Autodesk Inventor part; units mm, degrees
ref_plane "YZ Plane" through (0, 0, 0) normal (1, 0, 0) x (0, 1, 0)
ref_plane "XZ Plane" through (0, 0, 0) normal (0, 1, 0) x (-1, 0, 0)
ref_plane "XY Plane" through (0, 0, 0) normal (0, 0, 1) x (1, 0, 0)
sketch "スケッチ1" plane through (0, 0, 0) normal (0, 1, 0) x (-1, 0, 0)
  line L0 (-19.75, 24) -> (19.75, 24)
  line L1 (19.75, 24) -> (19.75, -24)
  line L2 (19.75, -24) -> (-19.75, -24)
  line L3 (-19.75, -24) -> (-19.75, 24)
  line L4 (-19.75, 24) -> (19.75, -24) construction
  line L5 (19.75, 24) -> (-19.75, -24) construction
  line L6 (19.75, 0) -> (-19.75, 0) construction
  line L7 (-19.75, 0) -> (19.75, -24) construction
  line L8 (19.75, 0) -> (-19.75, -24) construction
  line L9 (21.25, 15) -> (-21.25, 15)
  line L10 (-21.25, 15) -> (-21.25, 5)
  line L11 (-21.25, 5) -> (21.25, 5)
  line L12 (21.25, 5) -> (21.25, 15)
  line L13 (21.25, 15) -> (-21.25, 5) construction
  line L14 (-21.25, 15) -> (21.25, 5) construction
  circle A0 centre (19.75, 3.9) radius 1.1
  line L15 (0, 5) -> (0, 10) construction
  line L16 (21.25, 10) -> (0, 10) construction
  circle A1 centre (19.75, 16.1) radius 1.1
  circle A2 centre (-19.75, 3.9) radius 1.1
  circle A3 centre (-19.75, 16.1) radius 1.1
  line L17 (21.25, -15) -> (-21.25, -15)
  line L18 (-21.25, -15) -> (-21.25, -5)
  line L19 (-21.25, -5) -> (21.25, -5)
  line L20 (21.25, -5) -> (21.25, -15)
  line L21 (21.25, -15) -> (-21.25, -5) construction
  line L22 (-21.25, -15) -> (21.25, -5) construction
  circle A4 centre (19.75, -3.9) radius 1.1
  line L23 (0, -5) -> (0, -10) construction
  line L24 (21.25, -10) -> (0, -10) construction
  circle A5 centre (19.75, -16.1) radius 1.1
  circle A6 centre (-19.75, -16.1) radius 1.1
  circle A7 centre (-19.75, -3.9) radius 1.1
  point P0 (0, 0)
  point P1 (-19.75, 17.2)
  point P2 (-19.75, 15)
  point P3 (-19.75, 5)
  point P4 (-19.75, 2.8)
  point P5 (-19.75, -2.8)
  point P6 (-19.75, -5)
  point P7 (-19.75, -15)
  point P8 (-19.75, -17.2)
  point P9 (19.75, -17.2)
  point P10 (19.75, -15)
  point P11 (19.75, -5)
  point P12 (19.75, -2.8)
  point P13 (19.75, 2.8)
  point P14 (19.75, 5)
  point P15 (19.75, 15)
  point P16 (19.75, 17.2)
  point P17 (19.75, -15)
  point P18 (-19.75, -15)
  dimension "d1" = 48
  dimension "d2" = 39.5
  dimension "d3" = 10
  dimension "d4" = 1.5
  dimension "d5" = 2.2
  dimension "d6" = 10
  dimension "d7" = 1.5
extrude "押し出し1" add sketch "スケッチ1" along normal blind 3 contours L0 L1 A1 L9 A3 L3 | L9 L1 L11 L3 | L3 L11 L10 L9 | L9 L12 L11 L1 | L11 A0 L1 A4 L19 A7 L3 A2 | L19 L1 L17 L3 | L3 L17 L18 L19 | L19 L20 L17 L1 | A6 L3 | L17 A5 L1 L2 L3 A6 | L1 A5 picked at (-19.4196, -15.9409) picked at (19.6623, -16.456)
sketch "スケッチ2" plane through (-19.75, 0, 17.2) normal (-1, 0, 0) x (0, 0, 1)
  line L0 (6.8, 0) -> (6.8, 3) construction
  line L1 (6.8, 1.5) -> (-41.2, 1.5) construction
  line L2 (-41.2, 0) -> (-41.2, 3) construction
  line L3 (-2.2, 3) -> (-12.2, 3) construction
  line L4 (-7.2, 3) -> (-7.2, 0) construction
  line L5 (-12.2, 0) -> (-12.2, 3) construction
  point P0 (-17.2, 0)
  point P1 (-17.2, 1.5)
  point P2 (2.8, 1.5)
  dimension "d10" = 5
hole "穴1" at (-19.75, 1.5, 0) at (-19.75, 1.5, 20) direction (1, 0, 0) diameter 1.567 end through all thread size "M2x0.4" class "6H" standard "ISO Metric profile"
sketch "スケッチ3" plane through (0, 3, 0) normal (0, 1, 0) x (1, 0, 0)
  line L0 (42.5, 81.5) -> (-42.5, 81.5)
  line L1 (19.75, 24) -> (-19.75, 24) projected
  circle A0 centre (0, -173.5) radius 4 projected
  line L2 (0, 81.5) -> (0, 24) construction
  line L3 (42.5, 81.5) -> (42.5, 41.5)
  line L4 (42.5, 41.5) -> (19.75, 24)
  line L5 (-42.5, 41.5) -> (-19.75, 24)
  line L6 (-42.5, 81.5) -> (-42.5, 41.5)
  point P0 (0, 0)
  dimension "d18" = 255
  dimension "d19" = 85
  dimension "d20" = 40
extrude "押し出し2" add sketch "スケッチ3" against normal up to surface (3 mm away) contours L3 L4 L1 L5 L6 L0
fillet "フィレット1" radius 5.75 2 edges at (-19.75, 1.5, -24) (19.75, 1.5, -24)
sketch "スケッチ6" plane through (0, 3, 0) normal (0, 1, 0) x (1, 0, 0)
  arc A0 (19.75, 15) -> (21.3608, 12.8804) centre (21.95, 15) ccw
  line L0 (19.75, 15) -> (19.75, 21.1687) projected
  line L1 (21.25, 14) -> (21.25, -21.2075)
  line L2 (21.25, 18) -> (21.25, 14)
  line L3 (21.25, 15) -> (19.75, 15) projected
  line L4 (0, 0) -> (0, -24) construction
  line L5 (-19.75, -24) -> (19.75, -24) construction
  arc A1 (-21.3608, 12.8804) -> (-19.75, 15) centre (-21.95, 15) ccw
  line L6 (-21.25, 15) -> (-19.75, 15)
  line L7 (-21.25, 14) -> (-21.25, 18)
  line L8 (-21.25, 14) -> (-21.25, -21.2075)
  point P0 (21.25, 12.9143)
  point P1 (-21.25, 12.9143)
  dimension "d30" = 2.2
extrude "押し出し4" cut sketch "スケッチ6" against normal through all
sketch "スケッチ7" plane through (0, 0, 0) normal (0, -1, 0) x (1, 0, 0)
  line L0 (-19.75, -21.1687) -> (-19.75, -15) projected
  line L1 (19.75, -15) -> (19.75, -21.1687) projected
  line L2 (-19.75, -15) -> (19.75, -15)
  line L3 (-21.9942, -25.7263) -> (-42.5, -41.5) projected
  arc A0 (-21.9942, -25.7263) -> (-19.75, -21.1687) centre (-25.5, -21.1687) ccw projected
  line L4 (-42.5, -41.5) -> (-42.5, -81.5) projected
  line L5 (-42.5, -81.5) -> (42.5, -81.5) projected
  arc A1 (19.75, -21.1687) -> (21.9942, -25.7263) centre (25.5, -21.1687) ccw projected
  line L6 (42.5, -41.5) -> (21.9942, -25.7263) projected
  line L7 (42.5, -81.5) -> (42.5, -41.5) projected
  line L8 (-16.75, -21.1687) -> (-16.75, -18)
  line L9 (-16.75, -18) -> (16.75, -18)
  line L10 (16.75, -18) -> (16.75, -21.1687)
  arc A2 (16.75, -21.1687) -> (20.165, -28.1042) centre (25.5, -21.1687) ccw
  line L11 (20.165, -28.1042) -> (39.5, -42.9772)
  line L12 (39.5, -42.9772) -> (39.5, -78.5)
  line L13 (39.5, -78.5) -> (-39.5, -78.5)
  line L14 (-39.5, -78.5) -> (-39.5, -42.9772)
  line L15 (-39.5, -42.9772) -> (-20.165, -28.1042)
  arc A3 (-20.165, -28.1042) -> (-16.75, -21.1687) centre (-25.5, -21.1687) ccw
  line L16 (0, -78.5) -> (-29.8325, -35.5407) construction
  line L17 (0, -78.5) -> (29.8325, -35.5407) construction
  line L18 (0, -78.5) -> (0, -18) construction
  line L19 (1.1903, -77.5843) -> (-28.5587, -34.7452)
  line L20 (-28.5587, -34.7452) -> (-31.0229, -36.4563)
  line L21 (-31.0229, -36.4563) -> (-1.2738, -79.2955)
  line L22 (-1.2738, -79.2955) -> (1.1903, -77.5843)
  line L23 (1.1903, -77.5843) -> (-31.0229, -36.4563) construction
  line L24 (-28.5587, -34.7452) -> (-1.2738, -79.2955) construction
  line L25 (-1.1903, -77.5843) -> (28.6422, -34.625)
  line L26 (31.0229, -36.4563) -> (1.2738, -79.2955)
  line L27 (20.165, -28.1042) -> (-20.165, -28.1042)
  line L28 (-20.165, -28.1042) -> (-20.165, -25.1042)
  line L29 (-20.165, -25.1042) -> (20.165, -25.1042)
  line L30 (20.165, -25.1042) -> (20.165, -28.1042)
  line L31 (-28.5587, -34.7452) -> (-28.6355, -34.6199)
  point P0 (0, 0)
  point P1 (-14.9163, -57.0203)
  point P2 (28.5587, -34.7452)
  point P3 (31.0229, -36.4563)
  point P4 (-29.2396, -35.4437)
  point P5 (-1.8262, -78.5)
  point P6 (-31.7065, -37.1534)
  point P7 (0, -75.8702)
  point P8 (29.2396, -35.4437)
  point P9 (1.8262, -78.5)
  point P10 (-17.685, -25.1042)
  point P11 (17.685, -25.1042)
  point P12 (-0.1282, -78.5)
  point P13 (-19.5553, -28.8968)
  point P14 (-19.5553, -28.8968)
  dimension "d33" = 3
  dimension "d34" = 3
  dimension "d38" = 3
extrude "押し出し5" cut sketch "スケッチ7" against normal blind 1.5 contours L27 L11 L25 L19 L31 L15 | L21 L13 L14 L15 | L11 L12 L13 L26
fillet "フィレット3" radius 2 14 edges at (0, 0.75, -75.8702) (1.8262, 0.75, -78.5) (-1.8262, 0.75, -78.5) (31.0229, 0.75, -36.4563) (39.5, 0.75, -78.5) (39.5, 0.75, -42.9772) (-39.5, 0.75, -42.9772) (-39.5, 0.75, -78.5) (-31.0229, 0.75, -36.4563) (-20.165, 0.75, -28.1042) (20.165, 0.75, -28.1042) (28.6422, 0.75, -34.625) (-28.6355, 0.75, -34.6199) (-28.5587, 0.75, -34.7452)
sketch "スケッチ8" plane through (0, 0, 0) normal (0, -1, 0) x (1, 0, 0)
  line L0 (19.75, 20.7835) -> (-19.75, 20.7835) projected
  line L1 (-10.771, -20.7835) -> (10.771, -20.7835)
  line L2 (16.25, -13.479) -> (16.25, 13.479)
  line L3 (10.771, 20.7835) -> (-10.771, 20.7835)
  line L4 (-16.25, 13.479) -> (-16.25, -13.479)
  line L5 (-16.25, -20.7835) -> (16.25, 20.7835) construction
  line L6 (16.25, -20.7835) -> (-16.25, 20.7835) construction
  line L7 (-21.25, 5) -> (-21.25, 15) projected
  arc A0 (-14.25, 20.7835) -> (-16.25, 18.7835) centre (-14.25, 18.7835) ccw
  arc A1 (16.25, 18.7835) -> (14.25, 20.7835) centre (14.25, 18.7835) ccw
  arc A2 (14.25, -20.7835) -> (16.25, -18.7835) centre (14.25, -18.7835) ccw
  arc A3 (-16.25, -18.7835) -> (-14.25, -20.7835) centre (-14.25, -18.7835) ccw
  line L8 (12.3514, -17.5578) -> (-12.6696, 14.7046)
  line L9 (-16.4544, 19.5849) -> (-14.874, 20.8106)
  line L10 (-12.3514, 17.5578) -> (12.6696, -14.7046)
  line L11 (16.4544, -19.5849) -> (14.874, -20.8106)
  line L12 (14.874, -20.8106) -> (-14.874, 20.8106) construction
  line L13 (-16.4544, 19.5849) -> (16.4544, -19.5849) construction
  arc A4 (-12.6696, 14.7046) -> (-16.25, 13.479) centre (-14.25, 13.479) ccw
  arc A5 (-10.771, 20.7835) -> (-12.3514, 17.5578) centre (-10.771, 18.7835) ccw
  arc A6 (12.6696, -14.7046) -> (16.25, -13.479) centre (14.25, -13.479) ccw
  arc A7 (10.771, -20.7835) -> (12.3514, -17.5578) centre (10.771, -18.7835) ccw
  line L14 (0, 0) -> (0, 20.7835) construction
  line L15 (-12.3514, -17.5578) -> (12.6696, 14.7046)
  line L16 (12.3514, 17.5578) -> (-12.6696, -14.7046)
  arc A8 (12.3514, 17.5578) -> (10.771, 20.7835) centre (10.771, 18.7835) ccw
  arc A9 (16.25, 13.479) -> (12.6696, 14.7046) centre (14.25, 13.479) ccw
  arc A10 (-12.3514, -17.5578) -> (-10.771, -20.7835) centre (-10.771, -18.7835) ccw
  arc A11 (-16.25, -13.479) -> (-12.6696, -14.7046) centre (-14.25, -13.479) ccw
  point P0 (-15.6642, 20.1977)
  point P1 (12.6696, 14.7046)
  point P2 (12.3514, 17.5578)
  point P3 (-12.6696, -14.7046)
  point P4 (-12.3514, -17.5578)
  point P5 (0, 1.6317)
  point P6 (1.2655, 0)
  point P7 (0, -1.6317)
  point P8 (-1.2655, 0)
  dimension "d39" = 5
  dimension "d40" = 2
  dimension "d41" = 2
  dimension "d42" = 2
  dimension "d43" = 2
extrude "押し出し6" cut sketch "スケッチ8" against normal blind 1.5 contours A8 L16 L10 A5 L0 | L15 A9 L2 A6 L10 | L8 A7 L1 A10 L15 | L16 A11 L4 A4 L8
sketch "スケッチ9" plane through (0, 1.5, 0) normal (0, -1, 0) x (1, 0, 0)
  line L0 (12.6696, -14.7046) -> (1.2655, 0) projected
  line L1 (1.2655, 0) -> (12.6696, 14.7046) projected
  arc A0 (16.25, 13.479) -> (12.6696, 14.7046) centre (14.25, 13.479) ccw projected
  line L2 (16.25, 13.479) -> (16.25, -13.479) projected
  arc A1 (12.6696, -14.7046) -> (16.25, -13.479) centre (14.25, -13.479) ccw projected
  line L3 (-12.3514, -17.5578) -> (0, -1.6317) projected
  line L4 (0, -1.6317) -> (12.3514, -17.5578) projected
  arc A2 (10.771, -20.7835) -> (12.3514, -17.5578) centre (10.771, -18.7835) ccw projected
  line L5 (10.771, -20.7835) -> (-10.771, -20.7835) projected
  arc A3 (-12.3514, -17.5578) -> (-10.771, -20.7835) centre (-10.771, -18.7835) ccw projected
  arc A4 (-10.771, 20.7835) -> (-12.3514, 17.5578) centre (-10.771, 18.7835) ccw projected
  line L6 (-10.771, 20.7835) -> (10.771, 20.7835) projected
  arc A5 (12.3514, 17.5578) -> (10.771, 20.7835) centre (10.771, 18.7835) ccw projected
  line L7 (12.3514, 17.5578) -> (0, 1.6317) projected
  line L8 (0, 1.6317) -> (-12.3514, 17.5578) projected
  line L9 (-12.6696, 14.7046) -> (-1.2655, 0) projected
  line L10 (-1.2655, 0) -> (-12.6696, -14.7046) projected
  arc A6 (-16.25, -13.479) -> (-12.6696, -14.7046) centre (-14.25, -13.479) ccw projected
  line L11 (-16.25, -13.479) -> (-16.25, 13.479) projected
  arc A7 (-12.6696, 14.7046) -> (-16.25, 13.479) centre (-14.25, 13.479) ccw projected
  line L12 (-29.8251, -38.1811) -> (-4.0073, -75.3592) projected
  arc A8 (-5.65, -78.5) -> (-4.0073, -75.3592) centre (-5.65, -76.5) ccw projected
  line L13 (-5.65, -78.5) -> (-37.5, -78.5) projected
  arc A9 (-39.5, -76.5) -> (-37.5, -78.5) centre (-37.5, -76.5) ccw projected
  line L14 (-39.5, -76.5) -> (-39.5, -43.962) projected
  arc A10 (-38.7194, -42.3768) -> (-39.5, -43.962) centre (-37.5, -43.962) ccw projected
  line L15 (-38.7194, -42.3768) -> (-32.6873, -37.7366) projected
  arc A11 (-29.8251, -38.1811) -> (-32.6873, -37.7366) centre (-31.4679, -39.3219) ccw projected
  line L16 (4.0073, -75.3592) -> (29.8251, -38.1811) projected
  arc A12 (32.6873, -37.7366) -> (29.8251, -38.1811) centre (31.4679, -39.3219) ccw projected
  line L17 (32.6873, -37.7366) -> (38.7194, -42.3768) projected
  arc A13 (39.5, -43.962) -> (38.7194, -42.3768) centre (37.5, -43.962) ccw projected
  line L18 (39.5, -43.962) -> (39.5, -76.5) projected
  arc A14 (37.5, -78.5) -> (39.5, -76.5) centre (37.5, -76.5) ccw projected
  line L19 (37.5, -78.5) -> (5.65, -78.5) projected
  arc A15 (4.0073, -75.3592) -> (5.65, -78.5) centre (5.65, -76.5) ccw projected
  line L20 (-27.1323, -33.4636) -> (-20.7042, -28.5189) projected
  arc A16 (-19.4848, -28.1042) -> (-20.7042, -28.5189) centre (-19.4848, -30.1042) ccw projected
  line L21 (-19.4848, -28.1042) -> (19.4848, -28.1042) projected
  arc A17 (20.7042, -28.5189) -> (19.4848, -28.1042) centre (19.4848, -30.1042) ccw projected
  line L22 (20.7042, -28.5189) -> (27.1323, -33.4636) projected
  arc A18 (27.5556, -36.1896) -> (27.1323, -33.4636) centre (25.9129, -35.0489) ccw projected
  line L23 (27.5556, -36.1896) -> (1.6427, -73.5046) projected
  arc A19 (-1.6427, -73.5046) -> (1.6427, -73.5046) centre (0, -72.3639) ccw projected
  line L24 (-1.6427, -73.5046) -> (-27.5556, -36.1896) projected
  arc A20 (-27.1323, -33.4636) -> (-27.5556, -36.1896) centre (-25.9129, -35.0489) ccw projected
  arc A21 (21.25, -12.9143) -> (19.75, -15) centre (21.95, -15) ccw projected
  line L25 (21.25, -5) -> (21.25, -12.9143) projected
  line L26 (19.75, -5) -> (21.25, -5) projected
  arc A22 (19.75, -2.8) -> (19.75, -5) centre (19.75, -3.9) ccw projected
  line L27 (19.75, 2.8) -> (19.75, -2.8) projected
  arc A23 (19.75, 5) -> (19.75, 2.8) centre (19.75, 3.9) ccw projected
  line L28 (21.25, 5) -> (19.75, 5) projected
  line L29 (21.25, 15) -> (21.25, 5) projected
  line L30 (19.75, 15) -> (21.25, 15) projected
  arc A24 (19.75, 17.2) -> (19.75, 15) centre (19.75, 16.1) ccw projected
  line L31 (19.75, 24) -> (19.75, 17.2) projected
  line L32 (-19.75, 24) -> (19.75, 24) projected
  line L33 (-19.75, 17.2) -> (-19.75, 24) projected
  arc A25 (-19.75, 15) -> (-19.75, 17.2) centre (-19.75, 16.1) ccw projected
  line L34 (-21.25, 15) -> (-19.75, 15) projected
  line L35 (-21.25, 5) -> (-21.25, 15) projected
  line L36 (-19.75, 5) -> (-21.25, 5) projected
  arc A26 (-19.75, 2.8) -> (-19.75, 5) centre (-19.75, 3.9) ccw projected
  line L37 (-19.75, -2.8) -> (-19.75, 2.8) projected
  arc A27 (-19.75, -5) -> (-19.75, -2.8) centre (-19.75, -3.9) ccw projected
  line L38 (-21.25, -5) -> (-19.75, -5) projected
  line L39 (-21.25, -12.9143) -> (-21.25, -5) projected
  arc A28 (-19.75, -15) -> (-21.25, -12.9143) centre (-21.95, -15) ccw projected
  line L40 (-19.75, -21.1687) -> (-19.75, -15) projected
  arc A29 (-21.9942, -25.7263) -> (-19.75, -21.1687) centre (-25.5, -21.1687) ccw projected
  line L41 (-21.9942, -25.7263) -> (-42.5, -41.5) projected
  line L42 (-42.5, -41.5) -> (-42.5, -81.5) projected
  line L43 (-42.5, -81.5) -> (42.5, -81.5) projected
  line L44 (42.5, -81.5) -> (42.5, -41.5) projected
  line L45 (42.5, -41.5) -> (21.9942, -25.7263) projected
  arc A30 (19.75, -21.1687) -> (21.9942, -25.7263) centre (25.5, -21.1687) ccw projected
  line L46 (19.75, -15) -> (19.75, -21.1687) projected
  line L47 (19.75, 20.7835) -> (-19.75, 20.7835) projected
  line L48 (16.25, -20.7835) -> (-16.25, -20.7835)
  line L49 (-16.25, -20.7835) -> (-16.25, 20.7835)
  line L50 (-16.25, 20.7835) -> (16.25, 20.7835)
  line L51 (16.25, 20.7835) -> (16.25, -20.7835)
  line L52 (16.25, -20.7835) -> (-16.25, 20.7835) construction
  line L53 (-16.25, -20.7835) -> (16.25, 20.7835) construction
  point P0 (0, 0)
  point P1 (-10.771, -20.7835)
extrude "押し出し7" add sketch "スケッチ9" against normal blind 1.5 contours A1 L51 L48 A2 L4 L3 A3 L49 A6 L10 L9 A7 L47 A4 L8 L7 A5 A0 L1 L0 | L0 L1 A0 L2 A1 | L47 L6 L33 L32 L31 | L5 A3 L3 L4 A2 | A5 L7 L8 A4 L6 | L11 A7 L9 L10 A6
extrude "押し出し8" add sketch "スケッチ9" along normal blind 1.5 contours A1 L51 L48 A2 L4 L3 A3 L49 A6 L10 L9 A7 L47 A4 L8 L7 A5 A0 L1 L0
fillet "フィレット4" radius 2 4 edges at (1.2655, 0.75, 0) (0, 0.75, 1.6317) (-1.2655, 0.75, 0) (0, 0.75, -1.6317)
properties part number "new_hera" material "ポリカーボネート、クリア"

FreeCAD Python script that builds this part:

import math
import FreeCAD as App
import Part
import Sketcher


def edges_at(feature, points):
    """Names of the edges that pass closest to the given points."""
    edges = feature.Shape.Edges
    near = lambda p: min(range(len(edges)), key=lambda i: edges[i].distToShape(Part.Vertex(*p))[0])
    return sorted({f"Edge{near(p) + 1}" for p in points})


def add_polygon(sketch, points):
    """Adds a closed chain of lines whose ends are joined by coincident constraints."""
    first, n = sketch.GeometryCount, len(points)
    for a, b in zip(points, points[1:] + points[:1]):
        sketch.addGeometry(Part.LineSegment(App.Vector(*a, 0), App.Vector(*b, 0)), False)
    for i in range(n):
        sketch.addConstraint(Sketcher.Constraint("Coincident", first + i, 2, first + (i + 1) % n, 1))

doc = App.newDocument("Part")
body = doc.addObject("PartDesign::Body", "Body")

sketch1 = body.newObject("Sketcher::SketchObject", "Sketch")
sketch1.AttachmentSupport = (doc.getObject("XZ_Plane"), [""])
sketch1.MapMode = "FlatFace"
sketch1.addGeometry([
    Part.LineSegment(App.Vector(-19.75, 24, 0), App.Vector(19.75, 24, 0)),
    Part.LineSegment(App.Vector(19.75, 24, 0), App.Vector(19.75, 17.2, 0)),
    Part.ArcOfCircle(Part.Circle(App.Vector(19.75, 16.1, 0), App.Vector(0, 0, 1), 1.1), math.radians(90), math.radians(270)),
    Part.LineSegment(App.Vector(19.75, 15, 0), App.Vector(21.25, 15, 0)),
    Part.LineSegment(App.Vector(21.25, 15, 0), App.Vector(21.25, 5, 0)),
    Part.LineSegment(App.Vector(21.25, 5, 0), App.Vector(19.75, 5, 0)),
    Part.ArcOfCircle(Part.Circle(App.Vector(19.75, 3.9, 0), App.Vector(0, 0, 1), 1.1), math.radians(90), math.radians(270)),
    Part.LineSegment(App.Vector(19.75, 2.8, 0), App.Vector(19.75, -2.8, 0)),
    Part.ArcOfCircle(Part.Circle(App.Vector(19.75, -3.9, 0), App.Vector(0, 0, 1), 1.1), math.radians(90), math.radians(270)),
    Part.LineSegment(App.Vector(19.75, -5, 0), App.Vector(21.25, -5, 0)),
    Part.LineSegment(App.Vector(21.25, -5, 0), App.Vector(21.25, -15, 0)),
    Part.LineSegment(App.Vector(21.25, -15, 0), App.Vector(19.75, -15, 0)),
    Part.LineSegment(App.Vector(19.75, -15, 0), App.Vector(19.75, -24, 0)),
    Part.LineSegment(App.Vector(19.75, -24, 0), App.Vector(-19.75, -24, 0)),
    Part.LineSegment(App.Vector(-19.75, -24, 0), App.Vector(-19.75, -15, 0)),
    Part.LineSegment(App.Vector(-19.75, -15, 0), App.Vector(-21.25, -15, 0)),
    Part.LineSegment(App.Vector(-21.25, -15, 0), App.Vector(-21.25, -5, 0)),
    Part.LineSegment(App.Vector(-21.25, -5, 0), App.Vector(-19.75, -5, 0)),
    Part.ArcOfCircle(Part.Circle(App.Vector(-19.75, -3.9, 0), App.Vector(0, 0, 1), 1.1), math.radians(-90), math.radians(90)),
    Part.LineSegment(App.Vector(-19.75, -2.8, 0), App.Vector(-19.75, 2.8, 0)),
    Part.ArcOfCircle(Part.Circle(App.Vector(-19.75, 3.9, 0), App.Vector(0, 0, 1), 1.1), math.radians(-90), math.radians(90)),
    Part.LineSegment(App.Vector(-19.75, 5, 0), App.Vector(-21.25, 5, 0)),
    Part.LineSegment(App.Vector(-21.25, 5, 0), App.Vector(-21.25, 15, 0)),
    Part.LineSegment(App.Vector(-21.25, 15, 0), App.Vector(-19.75, 15, 0)),
    Part.ArcOfCircle(Part.Circle(App.Vector(-19.75, 16.1, 0), App.Vector(0, 0, 1), 1.1), math.radians(-90), math.radians(90)),
    Part.LineSegment(App.Vector(-19.75, 17.2, 0), App.Vector(-19.75, 24, 0)),
], False)
sketch1.addConstraint([
    Sketcher.Constraint("Coincident", 0, 2, 1, 1),
    Sketcher.Constraint("Coincident", 1, 2, 2, 1),
    Sketcher.Constraint("Tangent", 2, 2, 3, 1),
    Sketcher.Constraint("Coincident", 3, 2, 4, 1),
    Sketcher.Constraint("Coincident", 4, 2, 5, 1),
    Sketcher.Constraint("Tangent", 5, 2, 6, 1),
    Sketcher.Constraint("Coincident", 6, 2, 7, 1),
    Sketcher.Constraint("Coincident", 7, 2, 8, 1),
    Sketcher.Constraint("Tangent", 8, 2, 9, 1),
    Sketcher.Constraint("Coincident", 9, 2, 10, 1),
    Sketcher.Constraint("Coincident", 10, 2, 11, 1),
    Sketcher.Constraint("Coincident", 11, 2, 12, 1),
    Sketcher.Constraint("Coincident", 12, 2, 13, 1),
    Sketcher.Constraint("Coincident", 13, 2, 14, 1),
    Sketcher.Constraint("Coincident", 14, 2, 15, 1),
    Sketcher.Constraint("Coincident", 15, 2, 16, 1),
    Sketcher.Constraint("Coincident", 16, 2, 17, 1),
    Sketcher.Constraint("Tangent", 17, 2, 18, 1),
    Sketcher.Constraint("Coincident", 18, 2, 19, 1),
    Sketcher.Constraint("Coincident", 19, 2, 20, 1),
    Sketcher.Constraint("Tangent", 20, 2, 21, 1),
    Sketcher.Constraint("Coincident", 21, 2, 22, 1),
    Sketcher.Constraint("Coincident", 22, 2, 23, 1),
    Sketcher.Constraint("Tangent", 23, 2, 24, 1),
    Sketcher.Constraint("Coincident", 24, 2, 25, 1),
    Sketcher.Constraint("Coincident", 25, 2, 0, 1),
    Sketcher.Constraint("Horizontal", 0),
    Sketcher.Constraint("Vertical", 1),
    Sketcher.Constraint("Horizontal", 3),
    Sketcher.Constraint("Vertical", 4),
    Sketcher.Constraint("Horizontal", 5),
    Sketcher.Constraint("Vertical", 7),
    Sketcher.Constraint("Horizontal", 9),
    Sketcher.Constraint("Vertical", 10),
    Sketcher.Constraint("Horizontal", 11),
    Sketcher.Constraint("Vertical", 12),
    Sketcher.Constraint("Horizontal", 13),
    Sketcher.Constraint("Vertical", 14),
    Sketcher.Constraint("Horizontal", 15),
    Sketcher.Constraint("Vertical", 16),
    Sketcher.Constraint("Horizontal", 17),
    Sketcher.Constraint("Vertical", 19),
    Sketcher.Constraint("Horizontal", 21),
    Sketcher.Constraint("Vertical", 22),
    Sketcher.Constraint("Horizontal", 23),
    Sketcher.Constraint("Vertical", 25),
    Sketcher.Constraint("Equal", 2, 6),
    Sketcher.Constraint("Equal", 6, 8),
    Sketcher.Constraint("Equal", 8, 18),
    Sketcher.Constraint("Equal", 18, 20),
    Sketcher.Constraint("Equal", 20, 24),
    Sketcher.Constraint("Symmetric", 6, 3, 18, 3, -1, 1),
    Sketcher.Constraint("Symmetric", 8, 3, 20, 3, -1, 1),
    Sketcher.Constraint("Symmetric", 0, 2, 13, 2, -1, 1),
    Sketcher.Constraint("Symmetric", 2, 2, 14, 2, -1, 1),
    Sketcher.Constraint("Symmetric", 10, 2, 22, 2, -1, 1),
    Sketcher.Constraint("Symmetric", 8, 3, 18, 3, -2),
    Sketcher.Constraint("Symmetric", 2, 3, 24, 3, -2),
    Sketcher.Constraint("Vertical", 2, 3, 6, 3),
    Sketcher.Constraint("Vertical", 5, 2, 6, 2),
    Sketcher.Constraint("Vertical", 4, 2, 9, 2),
    Sketcher.Constraint("Vertical", 8, 2, 11, 2),
    Sketcher.Constraint("Vertical", 17, 2, 18, 2),
    Sketcher.Constraint("Vertical", 16, 2, 21, 2),
    Sketcher.Constraint("Vertical", 23, 2, 24, 2),
    Sketcher.Constraint("Radius", 2, 1.1),
    Sketcher.Constraint("DistanceY", 4, 2, 4, 1, 10.0),
    Sketcher.Constraint("DistanceX", 0, 1, 0, 2, 39.5),
    Sketcher.Constraint("DistanceX", 3, 1, 3, 2, 1.5),
    Sketcher.Constraint("DistanceY", 8, 2, 5, 2, 10.0),
    Sketcher.Constraint("DistanceY", 12, 2, 12, 1, 9.0),
])
pad1 = body.newObject("PartDesign::Pad", "Pad")
pad1.Profile = sketch1
pad1.Length = 3
pad1.Reversed = True

sketch2 = body.newObject("Sketcher::SketchObject", "Sketch001")
sketch2.AttachmentSupport = (doc.getObject("YZ_Plane"), [""])
sketch2.MapMode = "FlatFace"
sketch2.AttachmentOffset = App.Placement(App.Vector(0, 0, -19.75), App.Rotation())
sketch2.addGeometry([
    Part.Circle(App.Vector(1.5, 0, 0), App.Vector(0, 0, 1), 0.7835),
    Part.Circle(App.Vector(1.5, 20, 0), App.Vector(0, 0, 1), 0.7835),
], False)
sketch2.addConstraint([
    Sketcher.Constraint("Equal", 0, 1),
    Sketcher.Constraint("PointOnObject", 0, 3, -1),
    Sketcher.Constraint("Vertical", 0, 3, 1, 3),
    Sketcher.Constraint("Diameter", 0, 1.567),
    Sketcher.Constraint("DistanceY", -1, 1, 1, 3, 20.0),
    Sketcher.Constraint("DistanceX", -1, 1, 0, 3, 1.5),
])
doc.recompute()
hole = body.newObject("PartDesign::Hole", "Hole")
hole.Profile = sketch2
hole.ThreadType = "None"
hole.Diameter = 1.567
hole.DepthType = "ThroughAll"
hole.Reversed = True

sketch3 = body.newObject("Sketcher::SketchObject", "Sketch002")
sketch3.AttachmentSupport = (doc.getObject("XZ_Plane"), [""])
sketch3.MapMode = "FlatFace"
sketch3.AttachmentOffset = App.Placement(App.Vector(0, 0, -3), App.Rotation())
add_polygon(sketch3, [(42.5, -41.5), (42.5, -81.5), (-42.5, -81.5), (-42.5, -41.5), (-19.75, -24), (19.75, -24)])
sketch3.addConstraint([
    Sketcher.Constraint("Vertical", 0),
    Sketcher.Constraint("Horizontal", 1),
    Sketcher.Constraint("Vertical", 2),
    Sketcher.Constraint("Horizontal", 4),
    Sketcher.Constraint("Symmetric", 2, 2, 5, 2, -2),
    Sketcher.Constraint("Equal", 3, 5),
    Sketcher.Constraint("DistanceX", 1, 2, 1, 1, 85.0),
    Sketcher.Constraint("DistanceY", 0, 2, 0, 1, 40.0),
    Sketcher.Constraint("DistanceX", 4, 1, 4, 2, 39.5),
    Sketcher.Constraint("DistanceY", 3, 2, -1, 1, 24.0),
    Sketcher.Constraint("DistanceY", 0, 2, -1, 1, 81.5),
])
pad2 = body.newObject("PartDesign::Pad", "Pad001")
pad2.Profile = sketch3
pad2.Length = 3
doc.recompute()

fillet = body.newObject("PartDesign::Fillet", "Fillet")
fillet.Base = (pad2, edges_at(pad2, [(-19.75, 1.5, -24), (19.75, 1.5, -24)]))
fillet.Radius = 5.75

sketch4 = body.newObject("Sketcher::SketchObject", "Sketch003")
sketch4.AttachmentSupport = (doc.getObject("XZ_Plane"), [""])
sketch4.MapMode = "FlatFace"
sketch4.AttachmentOffset = App.Placement(App.Vector(0, 0, -3), App.Rotation())
sketch4.addGeometry([
    Part.LineSegment(App.Vector(21.25, -15, 0), App.Vector(19.75, -15, 0)),
    Part.ArcOfCircle(Part.Circle(App.Vector(21.95, -15, 0), App.Vector(0, 0, 1), 2.2), math.radians(108.55325), math.radians(180)),
    Part.LineSegment(App.Vector(21.25, -12.914364, 0), App.Vector(21.25, -15, 0)),
    Part.LineSegment(App.Vector(-21.25, -15, 0), App.Vector(-21.25, -12.914369, 0)),
    Part.ArcOfCircle(Part.Circle(App.Vector(-21.95, -15, 0), App.Vector(0, 0, 1), 2.199968), math.radians(0), math.radians(71.446708)),
    Part.LineSegment(App.Vector(-19.75, -15, 0), App.Vector(-21.25, -15, 0)),
], False)
sketch4.addConstraint([
    Sketcher.Constraint("Coincident", 0, 2, 1, 2),
    Sketcher.Constraint("Coincident", 1, 1, 2, 1),
    Sketcher.Constraint("Coincident", 2, 2, 0, 1),
    Sketcher.Constraint("Coincident", 3, 2, 4, 2),
    Sketcher.Constraint("Coincident", 4, 1, 5, 1),
    Sketcher.Constraint("Coincident", 5, 2, 3, 1),
    Sketcher.Constraint("Horizontal", 0),
    Sketcher.Constraint("Vertical", 2),
    Sketcher.Constraint("Vertical", 3),
    Sketcher.Constraint("Horizontal", 5),
    Sketcher.Constraint("Equal", 1, 4),
    Sketcher.Constraint("Symmetric", 1, 3, 4, 3, -2),
    Sketcher.Constraint("Symmetric", 2, 2, 5, 2, -2),
    Sketcher.Constraint("Horizontal", 4, 3, 0, 2),
    Sketcher.Constraint("Radius", 1, 2.2),
    Sketcher.Constraint("DistanceX", 0, 2, 0, 1, 1.5),
    Sketcher.Constraint("DistanceY", 1, 3, -1, 1, 15.0),
    Sketcher.Constraint("DistanceX", 3, 2, 0, 2, 41.0),
])
pocket1 = body.newObject("PartDesign::Pocket", "Pocket")
pocket1.Profile = sketch4
pocket1.Type = "ThroughAll"
pocket1.Reversed = True

sketch5 = body.newObject("Sketcher::SketchObject", "Sketch004")
sketch5.AttachmentSupport = (doc.getObject("XZ_Plane"), [""])
sketch5.MapMode = "FlatFace"
add_polygon(sketch5, [(20.165, -28.1042), (-20.165, -28.1042), (-28.6355, -34.6199), (-28.5587, -34.7452), (0.000001, -75.870247), (28.642157, -34.625056)])
add_polygon(sketch5, [(-1.826224, -78.5), (-31.022858, -36.456355), (-39.5, -42.9772), (-39.5, -78.5)])
add_polygon(sketch5, [(39.5, -42.9772), (31.0229, -36.4563), (1.826224, -78.5), (39.5, -78.5)])
sketch5.addConstraint([
    Sketcher.Constraint("Horizontal", 0),
    Sketcher.Constraint("Vertical", 8),
    Sketcher.Constraint("Horizontal", 9),
    Sketcher.Constraint("Horizontal", 12),
    Sketcher.Constraint("Vertical", 13),
    Sketcher.Constraint("Symmetric", 6, 2, 10, 2, -2),
    Sketcher.Constraint("Symmetric", 9, 2, 11, 2, -2),
    Sketcher.Constraint("Symmetric", 7, 2, 13, 2, -2),
    Sketcher.Constraint("PointOnObject", 3, 2, -2),
    Sketcher.Constraint("Parallel", 3, 6),
    Sketcher.Constraint("Parallel", 1, 7),
    Sketcher.Constraint("Parallel", 5, 10),
    Sketcher.Constraint("Parallel", 4, 11),
    Sketcher.Constraint("Equal", 5, 7),
    Sketcher.Constraint("DistanceX", 0, 2, 0, 1, 40.33),
    Sketcher.Constraint("DistanceX", 7, 2, -1, 1, 39.5),
    Sketcher.Constraint("DistanceY", 8, 2, -1, 1, 78.5),
    Sketcher.Constraint("DistanceY", 1, 2, -1, 1, 34.62),
    Sketcher.Constraint("Distance", 2, 0.147),
    Sketcher.Constraint("Distance", 4, 50.215),
    Sketcher.Constraint("Distance", 5, 10.695),
    Sketcher.Constraint("Distance", 6, 51.187),
    Sketcher.Constraint("DistanceX", 9, 1, 9, 2, 37.6738),
    Sketcher.Constraint("DistanceY", 8, 2, 8, 1, 35.5228),
    Sketcher.Constraint("DistanceY", 4, 2, -1, 1, 34.625),
])
pocket2 = body.newObject("PartDesign::Pocket", "Pocket001")
pocket2.Profile = sketch5
pocket2.Length = 1.5
doc.recompute()

fillet2 = body.newObject("PartDesign::Fillet", "Fillet001")
fillet2.Base = (pocket2, edges_at(pocket2, [
    (0, 0.75, -75.87),
    (1.826, 0.75, -78.5),
    (-1.826, 0.75, -78.5),
    (31.023, 0.75, -36.456),
    (39.5, 0.75, -78.5),
    (39.5, 0.75, -42.977),
    (-39.5, 0.75, -42.977),
    (-39.5, 0.75, -78.5),
    (-31.023, 0.75, -36.456),
    (-20.165, 0.75, -28.104),
    (20.165, 0.75, -28.104),
    (28.642, 0.75, -34.625),
    (-28.636, 0.75, -34.62),
    (-28.559, 0.75, -34.745),
]))
fillet2.Radius = 2

sketch6 = body.newObject("Sketcher::SketchObject", "Sketch005")
sketch6.AttachmentSupport = (doc.getObject("XZ_Plane"), [""])
sketch6.MapMode = "FlatFace"
sketch6.addGeometry([
    Part.ArcOfCircle(Part.Circle(App.Vector(10.771, 18.7835, 0), App.Vector(0, 0, 1), 2.000001), math.radians(-37.795837), math.radians(90)),
    Part.LineSegment(App.Vector(10.771, 20.7835, 0), App.Vector(-10.771, 20.7835, 0)),
    Part.ArcOfCircle(Part.Circle(App.Vector(-10.771, 18.7835, 0), App.Vector(0, 0, 1), 2), math.radians(90), math.radians(217.795837)),
    Part.LineSegment(App.Vector(-12.3514, 17.5578, 0), App.Vector(0, 1.631746, 0)),
    Part.LineSegment(App.Vector(0, 1.631746, 0), App.Vector(12.3514, 17.5578, 0)),
    Part.LineSegment(App.Vector(12.6696, 14.7046, 0), App.Vector(1.265495, 0, 0)),
    Part.LineSegment(App.Vector(1.265495, 0, 0), App.Vector(12.6696, -14.7046, 0)),
    Part.ArcOfCircle(Part.Circle(App.Vector(14.25, -13.479, 0), App.Vector(0, 0, 1), 1.99994), math.radians(-142.206427), math.radians(0)),
    Part.LineSegment(App.Vector(16.25, -13.479, 0), App.Vector(16.25, 13.479, 0)),
    Part.ArcOfCircle(Part.Circle(App.Vector(14.25, 13.479, 0), App.Vector(0, 0, 1), 2), math.radians(0), math.radians(142.206427)),
    Part.LineSegment(App.Vector(12.3514, -17.5578, 0), App.Vector(0, -1.631746, 0)),
    Part.LineSegment(App.Vector(0, -1.631746, 0), App.Vector(-12.3514, -17.5578, 0)),
    Part.ArcOfCircle(Part.Circle(App.Vector(-10.771, -18.7835, 0), App.Vector(0, 0, 1), 2.000001), math.radians(142.204163), math.radians(270)),
    Part.LineSegment(App.Vector(-10.771, -20.7835, 0), App.Vector(10.771, -20.7835, 0)),
    Part.ArcOfCircle(Part.Circle(App.Vector(10.771, -18.7835, 0), App.Vector(0, 0, 1), 2), math.radians(-90), math.radians(37.795837)),
    Part.LineSegment(App.Vector(-12.6696, -14.7046, 0), App.Vector(-1.265495, 0, 0)),
    Part.LineSegment(App.Vector(-1.265495, 0, 0), App.Vector(-12.6696, 14.7046, 0)),
    Part.ArcOfCircle(Part.Circle(App.Vector(-14.25, 13.479, 0), App.Vector(0, 0, 1), 1.99994), math.radians(37.793573), math.radians(180)),
    Part.LineSegment(App.Vector(-16.25, 13.479, 0), App.Vector(-16.25, -13.479, 0)),
    Part.ArcOfCircle(Part.Circle(App.Vector(-14.25, -13.479, 0), App.Vector(0, 0, 1), 2), math.radians(180), math.radians(322.206427)),
], False)
sketch6.addConstraint([
    Sketcher.Constraint("Tangent", 0, 2, 1, 1),
    Sketcher.Constraint("Tangent", 1, 2, 2, 1),
    Sketcher.Constraint("Tangent", 2, 2, 3, 1),
    Sketcher.Constraint("Coincident", 3, 2, 4, 1),
    Sketcher.Constraint("Tangent", 4, 2, 0, 1),
    Sketcher.Constraint("Coincident", 5, 2, 6, 1),
    Sketcher.Constraint("Tangent", 6, 2, 7, 1),
    Sketcher.Constraint("Tangent", 7, 2, 8, 1),
    Sketcher.Constraint("Tangent", 8, 2, 9, 1),
    Sketcher.Constraint("Tangent", 9, 2, 5, 1),
    Sketcher.Constraint("Coincident", 10, 2, 11, 1),
    Sketcher.Constraint("Tangent", 11, 2, 12, 1),
    Sketcher.Constraint("Tangent", 12, 2, 13, 1),
    Sketcher.Constraint("Tangent", 13, 2, 14, 1),
    Sketcher.Constraint("Tangent", 14, 2, 10, 1),
    Sketcher.Constraint("Coincident", 15, 2, 16, 1),
    Sketcher.Constraint("Tangent", 16, 2, 17, 1),
    Sketcher.Constraint("Tangent", 17, 2, 18, 1),
    Sketcher.Constraint("Tangent", 18, 2, 19, 1),
    Sketcher.Constraint("Tangent", 19, 2, 15, 1),
    Sketcher.Constraint("Horizontal", 1),
    Sketcher.Constraint("Vertical", 8),
    Sketcher.Constraint("Horizontal", 13),
    Sketcher.Constraint("Vertical", 18),
    Sketcher.Constraint("Equal", 0, 2),
    Sketcher.Constraint("Equal", 2, 7),
    Sketcher.Constraint("Equal", 7, 9),
    Sketcher.Constraint("Equal", 9, 12),
    Sketcher.Constraint("Equal", 12, 14),
    Sketcher.Constraint("Equal", 14, 17),
    Sketcher.Constraint("Equal", 17, 19),
    Sketcher.Constraint("Symmetric", 0, 3, 12, 3, -1, 1),
    Sketcher.Constraint("Symmetric", 7, 3, 17, 3, -1, 1),
    Sketcher.Constraint("Symmetric", 3, 2, 10, 2, -1, 1),
    Sketcher.Constraint("Symmetric", 5, 2, 15, 2, -1, 1),
    Sketcher.Constraint("Symmetric", 2, 2, 4, 2, -2),
    Sketcher.Constraint("Symmetric", 9, 2, 16, 2, -2),
    Sketcher.Constraint("Parallel", 4, 5),
    Sketcher.Constraint("Parallel", 6, 10),
    Sketcher.Constraint("Parallel", 11, 15),
    Sketcher.Constraint("Radius", 0, 2.0),
    Sketcher.Constraint("DistanceX", 17, 3, 9, 3, 28.5),
    Sketcher.Constraint("DistanceX", 1, 2, 1, 1, 21.542),
    Sketcher.Constraint("DistanceY", 8, 1, 8, 2, 26.958),
    Sketcher.Constraint("DistanceY", 12, 3, 2, 3, 37.567),
    Sketcher.Constraint("DistanceY", 3, 2, 2, 2, 15.926),
])
pocket3 = body.newObject("PartDesign::Pocket", "Pocket002")
pocket3.Profile = sketch6
pocket3.Length = 1.5

sketch7 = body.newObject("Sketcher::SketchObject", "Sketch006")
sketch7.AttachmentSupport = (doc.getObject("XZ_Plane"), [""])
sketch7.MapMode = "FlatFace"
sketch7.AttachmentOffset = App.Placement(App.Vector(0, 0, -1.5), App.Rotation())
add_polygon(sketch7, [(16.25, -20.7835), (16.25, 20.7835), (19.75, 20.7835), (19.75, 24), (-19.75, 24), (-19.75, 20.7835), (-16.25, 20.7835), (-16.25, -20.7835)])
sketch7.addConstraint([
    Sketcher.Constraint("Vertical", 0),
    Sketcher.Constraint("Horizontal", 1),
    Sketcher.Constraint("Vertical", 2),
    Sketcher.Constraint("Horizontal", 3),
    Sketcher.Constraint("Vertical", 4),
    Sketcher.Constraint("Horizontal", 5),
    Sketcher.Constraint("Vertical", 6),
    Sketcher.Constraint("Horizontal", 7),
    Sketcher.Constraint("Symmetric", 0, 2, 6, 2, -1, 1),
    Sketcher.Constraint("Symmetric", 1, 2, 4, 2, -2),
    Sketcher.Constraint("DistanceX", 1, 1, 1, 2, 3.5),
    Sketcher.Constraint("DistanceX", 3, 2, 3, 1, 39.5),
    Sketcher.Constraint("DistanceY", -1, 1, 2, 2, 24.0),
    Sketcher.Constraint("DistanceY", 0, 1, 0, 2, 41.567),
])
pad3 = body.newObject("PartDesign::Pad", "Pad002")
pad3.Profile = sketch7
pad3.Length = 1.5
pad3.Reversed = True

sketch8 = body.newObject("Sketcher::SketchObject", "Sketch007")
sketch8.AttachmentSupport = (doc.getObject("XZ_Plane"), [""])
sketch8.MapMode = "FlatFace"
sketch8.AttachmentOffset = App.Placement(App.Vector(0, 0, -1.5), App.Rotation())
sketch8.addGeometry([
    Part.ArcOfCircle(Part.Circle(App.Vector(14.25, -13.479, 0), App.Vector(0, 0, 1), 1.99994), math.radians(-142.206427), math.radians(0)),
    Part.LineSegment(App.Vector(12.6696, -14.7046, 0), App.Vector(1.2655, 0, 0)),
    Part.LineSegment(App.Vector(1.2655, 0, 0), App.Vector(12.6696, 14.7046, 0)),
    Part.ArcOfCircle(Part.Circle(App.Vector(14.25, 13.479, 0), App.Vector(0, 0, 1), 2), math.radians(0), math.radians(142.206427)),
    Part.LineSegment(App.Vector(16.25, 13.479, 0), App.Vector(16.25, 20.7835, 0)),
    Part.LineSegment(App.Vector(16.25, 20.7835, 0), App.Vector(10.771, 20.7835, 0)),
    Part.ArcOfCircle(Part.Circle(App.Vector(10.771, 18.7835, 0), App.Vector(0, 0, 1), 2.000001), math.radians(-37.795837), math.radians(90)),
    Part.LineSegment(App.Vector(12.3514, 17.5578, 0), App.Vector(0, 1.6317, 0)),
    Part.LineSegment(App.Vector(0, 1.6317, 0), App.Vector(-12.3514, 17.5578, 0)),
    Part.ArcOfCircle(Part.Circle(App.Vector(-10.771, 18.7835, 0), App.Vector(0, 0, 1), 2), math.radians(90), math.radians(217.795837)),
    Part.LineSegment(App.Vector(-10.771, 20.7835, 0), App.Vector(-16.25, 20.7835, 0)),
    Part.LineSegment(App.Vector(-16.25, 20.7835, 0), App.Vector(-16.25, 13.479, 0)),
    Part.ArcOfCircle(Part.Circle(App.Vector(-14.25, 13.479, 0), App.Vector(0, 0, 1), 1.99994), math.radians(37.793573), math.radians(180)),
    Part.LineSegment(App.Vector(-12.6696, 14.7046, 0), App.Vector(-1.2655, 0, 0)),
    Part.LineSegment(App.Vector(-1.2655, 0, 0), App.Vector(-12.6696, -14.7046, 0)),
    Part.ArcOfCircle(Part.Circle(App.Vector(-14.25, -13.479, 0), App.Vector(0, 0, 1), 2), math.radians(180), math.radians(322.206427)),
    Part.LineSegment(App.Vector(-16.25, -13.479, 0), App.Vector(-16.25, -20.7835, 0)),
    Part.LineSegment(App.Vector(-16.25, -20.7835, 0), App.Vector(-10.771, -20.7835, 0)),
    Part.ArcOfCircle(Part.Circle(App.Vector(-10.771, -18.7835, 0), App.Vector(0, 0, 1), 2.000001), math.radians(142.204163), math.radians(270)),
    Part.LineSegment(App.Vector(-12.3514, -17.5578, 0), App.Vector(0, -1.6317, 0)),
    Part.LineSegment(App.Vector(0, -1.6317, 0), App.Vector(12.3514, -17.5578, 0)),
    Part.ArcOfCircle(Part.Circle(App.Vector(10.771, -18.7835, 0), App.Vector(0, 0, 1), 2), math.radians(-90), math.radians(37.795837)),
    Part.LineSegment(App.Vector(10.771, -20.7835, 0), App.Vector(16.25, -20.7835, 0)),
    Part.LineSegment(App.Vector(16.25, -20.7835, 0), App.Vector(16.25, -13.479, 0)),
], False)
sketch8.addConstraint([
    Sketcher.Constraint("Coincident", 0, 1, 1, 1),
    Sketcher.Constraint("Coincident", 1, 2, 2, 1),
    Sketcher.Constraint("Coincident", 2, 2, 3, 2),
    Sketcher.Constraint("Coincident", 3, 1, 4, 1),
    Sketcher.Constraint("Coincident", 4, 2, 5, 1),
    Sketcher.Constraint("Coincident", 5, 2, 6, 2),
    Sketcher.Constraint("Coincident", 6, 1, 7, 1),
    Sketcher.Constraint("Coincident", 7, 2, 8, 1),
    Sketcher.Constraint("Coincident", 8, 2, 9, 2),
    Sketcher.Constraint("Coincident", 9, 1, 10, 1),
    Sketcher.Constraint("Coincident", 10, 2, 11, 1),
    Sketcher.Constraint("Coincident", 11, 2, 12, 2),
    Sketcher.Constraint("Coincident", 12, 1, 13, 1),
    Sketcher.Constraint("Coincident", 13, 2, 14, 1),
    Sketcher.Constraint("Coincident", 14, 2, 15, 2),
    Sketcher.Constraint("Coincident", 15, 1, 16, 1),
    Sketcher.Constraint("Coincident", 16, 2, 17, 1),
    Sketcher.Constraint("Coincident", 17, 2, 18, 2),
    Sketcher.Constraint("Coincident", 18, 1, 19, 1),
    Sketcher.Constraint("Coincident", 19, 2, 20, 1),
    Sketcher.Constraint("Coincident", 20, 2, 21, 2),
    Sketcher.Constraint("Coincident", 21, 1, 22, 1),
    Sketcher.Constraint("Coincident", 22, 2, 23, 1),
    Sketcher.Constraint("Coincident", 23, 2, 0, 2),
    Sketcher.Constraint("Vertical", 4),
    Sketcher.Constraint("Horizontal", 5),
    Sketcher.Constraint("Horizontal", 10),
    Sketcher.Constraint("Vertical", 11),
    Sketcher.Constraint("Vertical", 16),
    Sketcher.Constraint("Horizontal", 17),
    Sketcher.Constraint("Horizontal", 22),
    Sketcher.Constraint("Vertical", 23),
    Sketcher.Constraint("PointOnObject", 1, 2, -1),
    Sketcher.Constraint("PointOnObject", 7, 2, -2),
    Sketcher.Constraint("PointOnObject", 13, 2, -1),
    Sketcher.Constraint("PointOnObject", 19, 2, -2),
    Sketcher.Constraint("Radius", 0, 2.0),
    Sketcher.Constraint("Radius", 3, 2.0),
    Sketcher.Constraint("Radius", 6, 2.0),
    Sketcher.Constraint("Radius", 9, 2.0),
    Sketcher.Constraint("Radius", 12, 2.0),
    Sketcher.Constraint("Radius", 15, 2.0),
    Sketcher.Constraint("Radius", 18, 2.0),
    Sketcher.Constraint("Radius", 21, 2.0),
    Sketcher.Constraint("DistanceX", 0, 3, 3, 1, 2.0),
    Sketcher.Constraint("DistanceY", 6, 3, 9, 1, 2.0),
    Sketcher.Constraint("DistanceX", 12, 3, 3, 3, 28.5),
    Sketcher.Constraint("DistanceX", 15, 3, 0, 3, 28.5),
    Sketcher.Constraint("DistanceX", 5, 2, 5, 1, 5.479),
    Sketcher.Constraint("DistanceX", 10, 2, 10, 1, 5.479),
    Sketcher.Constraint("DistanceX", 17, 1, 17, 2, 5.479),
    Sketcher.Constraint("DistanceX", 22, 1, 22, 2, 5.479),
    Sketcher.Constraint("DistanceX", -1, 1, 0, 3, 14.25),
    Sketcher.Constraint("DistanceY", 4, 1, 4, 2, 7.3045),
    Sketcher.Constraint("DistanceY", 11, 2, 11, 1, 7.3045),
    Sketcher.Constraint("DistanceY", 16, 2, 16, 1, 7.3045),
    Sketcher.Constraint("DistanceY", 23, 1, 23, 2, 7.3045),
    Sketcher.Constraint("DistanceY", 0, 3, -1, 1, 13.479),
    Sketcher.Constraint("DistanceY", -1, 1, 3, 3, 13.479),
    Sketcher.Constraint("DistanceX", -1, 1, 6, 3, 10.771),
    Sketcher.Constraint("DistanceX", 9, 3, -1, 1, 10.771),
    Sketcher.Constraint("DistanceY", -1, 1, 12, 3, 13.479),
    Sketcher.Constraint("DistanceY", 15, 3, -1, 1, 13.479),
    Sketcher.Constraint("DistanceX", 18, 3, -1, 1, 10.771),
    Sketcher.Constraint("DistanceX", -1, 1, 21, 3, 10.771),
    Sketcher.Constraint("DistanceY", -1, 1, 3, 1, 13.479),
    Sketcher.Constraint("DistanceY", 15, 1, -1, 1, 13.479),
    Sketcher.Constraint("DistanceY", 23, 2, -1, 1, 13.479),
    Sketcher.Constraint("DistanceY", 21, 3, 0, 1, 4.079),
    Sketcher.Constraint("DistanceX", 1, 2, 0, 1, 11.404),
    Sketcher.Constraint("DistanceY", 2, 2, 6, 3, 4.079),
    Sketcher.Constraint("DistanceY", 7, 2, 2, 2, 13.073),
    Sketcher.Constraint("DistanceY", 7, 2, 8, 2, 15.926),
    Sketcher.Constraint("DistanceY", 12, 1, 9, 3, 4.079),
    Sketcher.Constraint("DistanceX", 13, 2, 1, 2, 2.531),
    Sketcher.Constraint("DistanceY", 18, 3, 14, 2, 4.079),
    Sketcher.Constraint("DistanceY", 0, 1, 19, 2, 13.073),
    Sketcher.Constraint("DistanceY", 20, 2, 19, 2, 15.926),
    Sketcher.Constraint("Distance", 7, 20.1543),
    Sketcher.Constraint("Distance", 19, 20.1543),
])
pad4 = body.newObject("PartDesign::Pad", "Pad003")
pad4.Profile = sketch8
pad4.Length = 1.5
doc.recompute()

fillet3 = body.newObject("PartDesign::Fillet", "Fillet002")
fillet3.Base = (pad4, edges_at(pad4, [
    (1.266, 0.75, 0),
    (0, 0.75, 1.632),
    (-1.266, 0.75, 0),
    (0, 0.75, -1.632),
]))
fillet3.Radius = 2

doc.recompute()
